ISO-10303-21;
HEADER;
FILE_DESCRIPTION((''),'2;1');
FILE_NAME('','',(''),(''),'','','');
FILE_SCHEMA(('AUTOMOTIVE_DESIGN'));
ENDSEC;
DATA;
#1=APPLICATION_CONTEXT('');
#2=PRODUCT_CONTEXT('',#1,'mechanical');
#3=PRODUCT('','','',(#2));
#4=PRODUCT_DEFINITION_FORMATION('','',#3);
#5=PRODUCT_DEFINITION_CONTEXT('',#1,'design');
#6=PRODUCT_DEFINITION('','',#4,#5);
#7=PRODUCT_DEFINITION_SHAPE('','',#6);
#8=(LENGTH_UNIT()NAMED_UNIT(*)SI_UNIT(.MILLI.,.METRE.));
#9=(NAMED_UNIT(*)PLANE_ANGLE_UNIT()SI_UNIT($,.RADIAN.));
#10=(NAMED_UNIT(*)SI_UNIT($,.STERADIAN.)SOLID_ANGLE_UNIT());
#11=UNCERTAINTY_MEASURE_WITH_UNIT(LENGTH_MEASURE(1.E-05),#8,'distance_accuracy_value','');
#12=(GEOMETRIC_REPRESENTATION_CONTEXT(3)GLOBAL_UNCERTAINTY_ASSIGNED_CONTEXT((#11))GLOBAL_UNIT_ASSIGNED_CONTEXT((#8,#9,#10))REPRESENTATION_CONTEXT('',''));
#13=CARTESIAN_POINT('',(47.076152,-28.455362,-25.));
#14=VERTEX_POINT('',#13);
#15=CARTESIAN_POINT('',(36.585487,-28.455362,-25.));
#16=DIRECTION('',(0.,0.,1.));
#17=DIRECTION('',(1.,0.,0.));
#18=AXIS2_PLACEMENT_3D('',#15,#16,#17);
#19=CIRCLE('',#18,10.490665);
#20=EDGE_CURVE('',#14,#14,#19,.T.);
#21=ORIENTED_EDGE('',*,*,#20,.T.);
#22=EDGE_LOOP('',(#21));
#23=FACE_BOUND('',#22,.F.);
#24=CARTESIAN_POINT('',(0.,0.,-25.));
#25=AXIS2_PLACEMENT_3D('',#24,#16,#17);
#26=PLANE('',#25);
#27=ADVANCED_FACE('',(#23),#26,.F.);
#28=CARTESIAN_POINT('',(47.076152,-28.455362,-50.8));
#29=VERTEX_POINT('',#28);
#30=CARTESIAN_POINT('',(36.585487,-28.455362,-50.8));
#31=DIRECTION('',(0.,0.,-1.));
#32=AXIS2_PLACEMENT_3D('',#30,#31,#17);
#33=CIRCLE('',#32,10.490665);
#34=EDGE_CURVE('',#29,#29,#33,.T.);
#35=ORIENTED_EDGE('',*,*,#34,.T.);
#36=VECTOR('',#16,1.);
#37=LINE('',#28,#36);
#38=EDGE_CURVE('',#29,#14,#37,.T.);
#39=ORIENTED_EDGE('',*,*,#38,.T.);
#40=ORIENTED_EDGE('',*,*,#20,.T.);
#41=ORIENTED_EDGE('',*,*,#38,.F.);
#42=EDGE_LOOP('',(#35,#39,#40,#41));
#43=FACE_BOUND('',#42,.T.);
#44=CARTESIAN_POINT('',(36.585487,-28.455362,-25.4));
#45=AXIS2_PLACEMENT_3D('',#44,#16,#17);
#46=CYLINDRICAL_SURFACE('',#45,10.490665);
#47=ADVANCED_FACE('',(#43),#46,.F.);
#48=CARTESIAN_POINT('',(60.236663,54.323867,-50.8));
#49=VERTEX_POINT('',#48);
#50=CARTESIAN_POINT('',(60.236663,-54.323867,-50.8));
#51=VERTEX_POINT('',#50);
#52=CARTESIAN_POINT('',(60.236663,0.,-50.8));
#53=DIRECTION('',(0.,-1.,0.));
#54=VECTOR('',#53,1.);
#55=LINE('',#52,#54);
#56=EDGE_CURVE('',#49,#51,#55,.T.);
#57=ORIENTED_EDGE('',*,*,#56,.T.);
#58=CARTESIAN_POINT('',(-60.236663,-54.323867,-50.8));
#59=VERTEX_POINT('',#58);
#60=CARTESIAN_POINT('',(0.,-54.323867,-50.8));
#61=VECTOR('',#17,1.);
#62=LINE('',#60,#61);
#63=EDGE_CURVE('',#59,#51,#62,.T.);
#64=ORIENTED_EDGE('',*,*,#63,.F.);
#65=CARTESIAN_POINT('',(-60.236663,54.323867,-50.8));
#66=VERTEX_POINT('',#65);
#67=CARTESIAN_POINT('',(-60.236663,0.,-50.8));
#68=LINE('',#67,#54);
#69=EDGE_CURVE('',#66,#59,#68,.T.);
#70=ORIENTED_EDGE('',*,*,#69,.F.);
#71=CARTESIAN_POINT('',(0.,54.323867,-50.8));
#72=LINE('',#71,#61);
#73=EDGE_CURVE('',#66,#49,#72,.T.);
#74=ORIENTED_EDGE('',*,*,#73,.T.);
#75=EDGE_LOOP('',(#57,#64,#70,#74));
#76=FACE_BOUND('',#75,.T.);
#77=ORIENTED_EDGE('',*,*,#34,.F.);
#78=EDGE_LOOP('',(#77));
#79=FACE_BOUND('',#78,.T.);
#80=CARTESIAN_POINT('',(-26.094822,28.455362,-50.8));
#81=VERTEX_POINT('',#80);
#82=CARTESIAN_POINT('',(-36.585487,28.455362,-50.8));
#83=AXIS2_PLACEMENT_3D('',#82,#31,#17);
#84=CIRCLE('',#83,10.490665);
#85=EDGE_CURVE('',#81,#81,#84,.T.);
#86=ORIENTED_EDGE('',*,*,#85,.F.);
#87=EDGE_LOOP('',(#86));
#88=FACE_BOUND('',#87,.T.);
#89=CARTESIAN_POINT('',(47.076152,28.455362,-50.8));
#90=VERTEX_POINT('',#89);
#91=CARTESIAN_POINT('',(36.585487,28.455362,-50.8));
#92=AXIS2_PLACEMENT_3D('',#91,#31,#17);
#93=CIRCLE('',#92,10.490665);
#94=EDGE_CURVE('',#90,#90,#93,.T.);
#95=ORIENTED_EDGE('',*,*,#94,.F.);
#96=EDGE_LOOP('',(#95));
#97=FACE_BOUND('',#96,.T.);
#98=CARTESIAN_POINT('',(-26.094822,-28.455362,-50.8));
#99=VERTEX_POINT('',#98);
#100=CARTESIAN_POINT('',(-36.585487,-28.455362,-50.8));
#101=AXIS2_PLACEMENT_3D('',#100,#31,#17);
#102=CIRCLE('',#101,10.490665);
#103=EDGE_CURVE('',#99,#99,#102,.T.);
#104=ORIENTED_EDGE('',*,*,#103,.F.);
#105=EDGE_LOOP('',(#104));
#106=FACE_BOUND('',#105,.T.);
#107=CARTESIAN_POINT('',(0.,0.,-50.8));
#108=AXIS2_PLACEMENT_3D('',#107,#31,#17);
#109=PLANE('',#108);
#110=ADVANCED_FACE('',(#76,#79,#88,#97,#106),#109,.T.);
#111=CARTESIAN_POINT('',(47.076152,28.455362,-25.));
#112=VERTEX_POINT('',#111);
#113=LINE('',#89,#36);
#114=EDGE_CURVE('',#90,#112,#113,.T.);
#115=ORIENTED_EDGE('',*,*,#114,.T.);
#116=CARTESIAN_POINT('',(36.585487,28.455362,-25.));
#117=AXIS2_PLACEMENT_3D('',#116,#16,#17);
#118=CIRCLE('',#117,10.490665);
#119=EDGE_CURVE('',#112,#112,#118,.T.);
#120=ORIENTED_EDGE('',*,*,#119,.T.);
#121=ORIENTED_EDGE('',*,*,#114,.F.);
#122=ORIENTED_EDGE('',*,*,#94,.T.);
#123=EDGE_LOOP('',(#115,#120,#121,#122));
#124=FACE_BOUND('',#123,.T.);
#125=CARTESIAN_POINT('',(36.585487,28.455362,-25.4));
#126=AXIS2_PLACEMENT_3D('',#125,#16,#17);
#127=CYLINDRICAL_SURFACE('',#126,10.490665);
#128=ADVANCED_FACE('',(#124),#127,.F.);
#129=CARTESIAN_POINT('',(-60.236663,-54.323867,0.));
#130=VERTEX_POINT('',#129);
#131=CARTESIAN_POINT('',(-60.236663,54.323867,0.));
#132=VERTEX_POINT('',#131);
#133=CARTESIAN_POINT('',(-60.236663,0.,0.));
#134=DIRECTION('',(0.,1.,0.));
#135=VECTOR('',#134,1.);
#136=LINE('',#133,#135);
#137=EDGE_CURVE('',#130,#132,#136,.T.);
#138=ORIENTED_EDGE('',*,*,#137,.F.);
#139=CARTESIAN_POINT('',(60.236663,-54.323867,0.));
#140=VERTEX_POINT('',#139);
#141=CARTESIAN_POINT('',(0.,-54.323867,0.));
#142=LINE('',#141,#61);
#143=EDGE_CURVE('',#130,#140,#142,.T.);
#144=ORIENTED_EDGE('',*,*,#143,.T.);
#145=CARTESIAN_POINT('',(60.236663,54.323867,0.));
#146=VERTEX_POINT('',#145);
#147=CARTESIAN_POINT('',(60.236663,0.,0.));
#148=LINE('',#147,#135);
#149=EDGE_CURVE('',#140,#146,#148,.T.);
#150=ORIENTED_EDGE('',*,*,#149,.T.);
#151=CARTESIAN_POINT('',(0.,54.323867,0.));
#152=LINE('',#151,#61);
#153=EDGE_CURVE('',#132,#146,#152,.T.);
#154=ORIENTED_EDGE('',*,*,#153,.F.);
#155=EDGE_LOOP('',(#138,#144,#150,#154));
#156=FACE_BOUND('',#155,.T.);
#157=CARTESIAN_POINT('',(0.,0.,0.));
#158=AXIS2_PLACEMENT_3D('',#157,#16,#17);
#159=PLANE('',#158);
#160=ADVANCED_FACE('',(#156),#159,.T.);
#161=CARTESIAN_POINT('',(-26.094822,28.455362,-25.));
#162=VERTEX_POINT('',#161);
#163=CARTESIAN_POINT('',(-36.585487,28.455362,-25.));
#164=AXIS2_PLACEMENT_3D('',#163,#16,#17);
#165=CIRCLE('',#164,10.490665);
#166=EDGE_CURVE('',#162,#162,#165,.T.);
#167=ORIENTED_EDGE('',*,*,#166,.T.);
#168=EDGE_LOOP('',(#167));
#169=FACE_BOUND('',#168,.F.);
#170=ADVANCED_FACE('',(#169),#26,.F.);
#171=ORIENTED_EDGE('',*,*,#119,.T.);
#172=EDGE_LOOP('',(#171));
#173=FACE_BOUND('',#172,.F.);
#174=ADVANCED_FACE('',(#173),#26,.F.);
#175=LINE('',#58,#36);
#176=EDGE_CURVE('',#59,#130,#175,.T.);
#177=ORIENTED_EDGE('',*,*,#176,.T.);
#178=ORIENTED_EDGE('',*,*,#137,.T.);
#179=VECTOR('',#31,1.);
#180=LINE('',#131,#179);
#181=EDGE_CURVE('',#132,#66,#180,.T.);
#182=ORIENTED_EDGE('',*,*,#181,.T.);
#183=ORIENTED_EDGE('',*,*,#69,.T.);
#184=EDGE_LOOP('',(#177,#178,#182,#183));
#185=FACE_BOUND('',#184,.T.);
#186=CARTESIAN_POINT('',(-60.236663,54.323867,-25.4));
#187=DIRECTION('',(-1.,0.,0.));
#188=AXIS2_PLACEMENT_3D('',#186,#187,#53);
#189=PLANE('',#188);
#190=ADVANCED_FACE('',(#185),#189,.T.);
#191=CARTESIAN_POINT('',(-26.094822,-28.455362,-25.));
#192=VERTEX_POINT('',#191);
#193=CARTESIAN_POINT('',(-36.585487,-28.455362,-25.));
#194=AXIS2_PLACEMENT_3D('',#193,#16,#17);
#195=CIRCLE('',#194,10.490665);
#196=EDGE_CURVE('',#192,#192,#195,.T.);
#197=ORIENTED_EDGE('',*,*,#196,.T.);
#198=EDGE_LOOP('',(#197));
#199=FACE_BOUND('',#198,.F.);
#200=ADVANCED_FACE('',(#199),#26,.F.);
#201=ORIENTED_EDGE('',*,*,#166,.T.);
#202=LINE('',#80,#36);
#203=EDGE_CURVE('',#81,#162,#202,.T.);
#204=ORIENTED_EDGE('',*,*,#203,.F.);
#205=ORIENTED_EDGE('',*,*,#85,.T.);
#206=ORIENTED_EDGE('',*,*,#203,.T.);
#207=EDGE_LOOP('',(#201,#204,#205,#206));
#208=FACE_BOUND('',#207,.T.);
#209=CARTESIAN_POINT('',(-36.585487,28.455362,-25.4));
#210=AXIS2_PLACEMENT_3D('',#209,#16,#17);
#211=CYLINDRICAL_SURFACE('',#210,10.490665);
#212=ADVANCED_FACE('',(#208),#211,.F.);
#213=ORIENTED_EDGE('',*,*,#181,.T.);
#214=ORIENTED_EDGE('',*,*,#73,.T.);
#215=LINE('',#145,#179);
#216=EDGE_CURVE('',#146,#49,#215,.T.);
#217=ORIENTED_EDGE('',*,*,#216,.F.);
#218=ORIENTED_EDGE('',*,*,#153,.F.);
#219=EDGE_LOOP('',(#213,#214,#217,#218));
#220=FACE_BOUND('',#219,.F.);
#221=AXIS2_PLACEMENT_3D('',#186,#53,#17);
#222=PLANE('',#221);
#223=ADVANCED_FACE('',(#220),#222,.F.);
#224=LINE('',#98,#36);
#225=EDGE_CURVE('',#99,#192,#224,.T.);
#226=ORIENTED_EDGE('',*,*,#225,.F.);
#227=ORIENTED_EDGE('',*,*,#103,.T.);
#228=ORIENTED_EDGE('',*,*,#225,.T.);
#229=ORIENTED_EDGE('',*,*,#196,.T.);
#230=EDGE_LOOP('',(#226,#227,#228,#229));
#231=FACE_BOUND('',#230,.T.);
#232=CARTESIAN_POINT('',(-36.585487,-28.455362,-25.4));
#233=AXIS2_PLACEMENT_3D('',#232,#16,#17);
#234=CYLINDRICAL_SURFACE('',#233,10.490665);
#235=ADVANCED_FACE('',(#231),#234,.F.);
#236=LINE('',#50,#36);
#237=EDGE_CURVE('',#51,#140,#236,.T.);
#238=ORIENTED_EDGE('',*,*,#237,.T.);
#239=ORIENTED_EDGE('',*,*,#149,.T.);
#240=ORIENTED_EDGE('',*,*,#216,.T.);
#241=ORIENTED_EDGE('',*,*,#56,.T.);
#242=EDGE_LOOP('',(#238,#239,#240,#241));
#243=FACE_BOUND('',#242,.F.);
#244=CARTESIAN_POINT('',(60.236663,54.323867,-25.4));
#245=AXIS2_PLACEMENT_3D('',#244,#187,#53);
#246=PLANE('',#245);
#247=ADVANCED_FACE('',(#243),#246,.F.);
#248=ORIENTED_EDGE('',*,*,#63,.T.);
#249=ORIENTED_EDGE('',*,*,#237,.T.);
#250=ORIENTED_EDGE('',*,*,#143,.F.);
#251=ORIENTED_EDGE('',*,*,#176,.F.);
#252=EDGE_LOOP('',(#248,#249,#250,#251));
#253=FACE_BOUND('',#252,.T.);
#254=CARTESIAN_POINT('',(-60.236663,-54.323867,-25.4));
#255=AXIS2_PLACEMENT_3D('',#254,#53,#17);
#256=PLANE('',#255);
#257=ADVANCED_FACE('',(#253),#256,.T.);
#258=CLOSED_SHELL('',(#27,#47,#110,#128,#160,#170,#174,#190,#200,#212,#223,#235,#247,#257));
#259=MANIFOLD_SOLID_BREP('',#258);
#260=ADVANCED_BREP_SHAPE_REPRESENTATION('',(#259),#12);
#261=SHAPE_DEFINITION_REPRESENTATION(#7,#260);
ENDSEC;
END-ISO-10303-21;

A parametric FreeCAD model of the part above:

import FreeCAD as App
import Part
import Sketcher
Q = App.Units.Quantity


def add_polygon(sketch, points):
    """Adds a closed chain of lines whose ends are joined by coincident constraints."""
    first, n = sketch.GeometryCount, len(points)
    for a, b in zip(points, points[1:] + points[:1]):
        sketch.addGeometry(Part.LineSegment(App.Vector(*a, 0), App.Vector(*b, 0)), False)
    for i in range(n):
        sketch.addConstraint(Sketcher.Constraint("Coincident", first + i, 2, first + (i + 1) % n, 1))

doc = App.newDocument("Part")
body = doc.addObject("PartDesign::Body", "Body")

# Sketch on XY plane
sketch1 = doc.addObject("Sketcher::SketchObject", "Sketch")
body.addObject(sketch1)
sketch1.AttachmentSupport = (doc.XY_Plane, [""])
sketch1.MapMode = "FlatFace"
add_polygon(sketch1, [(-60.236663, 54.323867), (-60.236663, -54.323867), (60.236663, -54.323867), (60.236663, 54.323867)])  # lines 0-3
sketch1.addConstraint([
    Sketcher.Constraint("Vertical", 0),
    Sketcher.Constraint("Horizontal", 1),
    Sketcher.Constraint("Vertical", 2),
    Sketcher.Constraint("Horizontal", 3),
    Sketcher.Constraint("Symmetric", 0, 2, 2, 2, -1, 1),
    Sketcher.Constraint("DistanceX", 1, 1, 1, 2, Q("120.473326 mm")),
    Sketcher.Constraint("DistanceY", 0, 2, 0, 1, Q("108.647734 mm")),
])
pad1 = doc.addObject("PartDesign::Pad", "Pad")
body.addObject(pad1)
pad1.Profile = sketch1
pad1.Length = 25
pad1.Reversed = True
doc.recompute()

fillet = doc.addObject("PartDesign::Fillet", "Fillet")
body.addObject(fillet)
fillet.Base = (pad1, ["Edge1"])
fillet.UseAllEdges = True
fillet.Radius = Q("0.2 in")

# Sketch on XY plane
sketch2 = doc.addObject("Sketcher::SketchObject", "Sketch001")
body.addObject(sketch2)
sketch2.AttachmentSupport = (doc.XY_Plane, [""])
sketch2.MapMode = "FlatFace"
add_polygon(sketch2, [(-60.236663, 54.323867), (-60.236663, -54.323867), (60.236663, -54.323867), (60.236663, 54.323867)])  # lines 0-3
sketch2.addGeometry(Part.Circle(App.Vector(-36.585487, -28.455362, 0), App.Vector(0, 0, 1), 10.490665), False)  # 4
sketch2.addGeometry(Part.Circle(App.Vector(36.585487, -28.455362, 0), App.Vector(0, 0, 1), 10.490665), False)  # 5
sketch2.addGeometry(Part.Circle(App.Vector(-36.585487, 28.455362, 0), App.Vector(0, 0, 1), 10.490665), False)  # 6
sketch2.addGeometry(Part.Circle(App.Vector(36.585487, 28.455362, 0), App.Vector(0, 0, 1), 10.490665), False)  # 7
sketch2.addConstraint([
    Sketcher.Constraint("Vertical", 0),
    Sketcher.Constraint("Horizontal", 1),
    Sketcher.Constraint("Vertical", 2),
    Sketcher.Constraint("Horizontal", 3),
    Sketcher.Constraint("Equal", 4, 5),
    Sketcher.Constraint("Equal", 5, 6),
    Sketcher.Constraint("Equal", 6, 7),
    Sketcher.Constraint("Symmetric", 5, 3, 6, 3, -1, 1),
    Sketcher.Constraint("Symmetric", 4, 3, 7, 3, -1, 1),
    Sketcher.Constraint("Symmetric", 0, 2, 2, 2, -1, 1),
    Sketcher.Constraint("Symmetric", 4, 3, 5, 3, -2),
    Sketcher.Constraint("Diameter", 4, Q("20.98133 mm")),
    Sketcher.Constraint("DistanceX", 1, 1, 1, 2, Q("120.473326 mm")),
    Sketcher.Constraint("DistanceY", 0, 2, 0, 1, Q("108.647734 mm")),
    Sketcher.Constraint("DistanceY", 0, 2, 6, 3, Q("82.779229 mm")),
    Sketcher.Constraint("DistanceX", 0, 2, 5, 3, Q("96.82215 mm")),
])
pad2 = doc.addObject("PartDesign::Pad", "Pad001")
body.addObject(pad2)
pad2.Profile = sketch2
pad2.Length = Q("1 in")
pad2.Reversed = True

# Sketch on XY plane
sketch3 = doc.addObject("Sketcher::SketchObject", "Sketch002")
body.addObject(sketch3)
sketch3.AttachmentSupport = (doc.XY_Plane, [""])
sketch3.MapMode = "FlatFace"
sketch3.AttachmentOffset = App.Placement(App.Vector(0, 0, -1 * 25.4), App.Rotation())
add_polygon(sketch3, [(-60.236663, -54.323867), (-60.236663, 54.323867), (60.236663, 54.323867), (60.236663, -54.323867)])  # lines 0-3
sketch3.addGeometry(Part.Circle(App.Vector(-36.585487, 28.455362, 0), App.Vector(0, 0, 1), 10.490665), False)  # 4
sketch3.addGeometry(Part.Circle(App.Vector(36.585487, 28.455362, 0), App.Vector(0, 0, 1), 10.490665), False)  # 5
sketch3.addGeometry(Part.Circle(App.Vector(-36.585487, -28.455362, 0), App.Vector(0, 0, 1), 10.490665), False)  # 6
sketch3.addGeometry(Part.Circle(App.Vector(36.585487, -28.455362, 0), App.Vector(0, 0, 1), 10.490665), False)  # 7
sketch3.addConstraint([
    Sketcher.Constraint("Vertical", 0),
    Sketcher.Constraint("Horizontal", 1),
    Sketcher.Constraint("Vertical", 2),
    Sketcher.Constraint("Horizontal", 3),
    Sketcher.Constraint("Equal", 4, 5),
    Sketcher.Constraint("Equal", 5, 6),
    Sketcher.Constraint("Equal", 6, 7),
    Sketcher.Constraint("Symmetric", 5, 3, 6, 3, -1, 1),
    Sketcher.Constraint("Symmetric", 4, 3, 7, 3, -1, 1),
    Sketcher.Constraint("Symmetric", 0, 2, 2, 2, -1, 1),
    Sketcher.Constraint("Symmetric", 4, 3, 5, 3, -2),
    Sketcher.Constraint("Diameter", 4, Q("20.98133 mm")),
    Sketcher.Constraint("DistanceX", 1, 1, 1, 2, Q("120.473326 mm")),
    Sketcher.Constraint("DistanceY", 0, 1, 0, 2, Q("108.647734 mm")),
    Sketcher.Constraint("DistanceY", 6, 3, 0, 2, Q("82.779229 mm")),
    Sketcher.Constraint("DistanceX", 0, 2, 5, 3, Q("96.82215 mm")),
])
pad3 = doc.addObject("PartDesign::Pad", "Pad002")
body.addObject(pad3)
pad3.Profile = sketch3
pad3.Length = Q("1 in")
pad3.Reversed = True

doc.recompute()
